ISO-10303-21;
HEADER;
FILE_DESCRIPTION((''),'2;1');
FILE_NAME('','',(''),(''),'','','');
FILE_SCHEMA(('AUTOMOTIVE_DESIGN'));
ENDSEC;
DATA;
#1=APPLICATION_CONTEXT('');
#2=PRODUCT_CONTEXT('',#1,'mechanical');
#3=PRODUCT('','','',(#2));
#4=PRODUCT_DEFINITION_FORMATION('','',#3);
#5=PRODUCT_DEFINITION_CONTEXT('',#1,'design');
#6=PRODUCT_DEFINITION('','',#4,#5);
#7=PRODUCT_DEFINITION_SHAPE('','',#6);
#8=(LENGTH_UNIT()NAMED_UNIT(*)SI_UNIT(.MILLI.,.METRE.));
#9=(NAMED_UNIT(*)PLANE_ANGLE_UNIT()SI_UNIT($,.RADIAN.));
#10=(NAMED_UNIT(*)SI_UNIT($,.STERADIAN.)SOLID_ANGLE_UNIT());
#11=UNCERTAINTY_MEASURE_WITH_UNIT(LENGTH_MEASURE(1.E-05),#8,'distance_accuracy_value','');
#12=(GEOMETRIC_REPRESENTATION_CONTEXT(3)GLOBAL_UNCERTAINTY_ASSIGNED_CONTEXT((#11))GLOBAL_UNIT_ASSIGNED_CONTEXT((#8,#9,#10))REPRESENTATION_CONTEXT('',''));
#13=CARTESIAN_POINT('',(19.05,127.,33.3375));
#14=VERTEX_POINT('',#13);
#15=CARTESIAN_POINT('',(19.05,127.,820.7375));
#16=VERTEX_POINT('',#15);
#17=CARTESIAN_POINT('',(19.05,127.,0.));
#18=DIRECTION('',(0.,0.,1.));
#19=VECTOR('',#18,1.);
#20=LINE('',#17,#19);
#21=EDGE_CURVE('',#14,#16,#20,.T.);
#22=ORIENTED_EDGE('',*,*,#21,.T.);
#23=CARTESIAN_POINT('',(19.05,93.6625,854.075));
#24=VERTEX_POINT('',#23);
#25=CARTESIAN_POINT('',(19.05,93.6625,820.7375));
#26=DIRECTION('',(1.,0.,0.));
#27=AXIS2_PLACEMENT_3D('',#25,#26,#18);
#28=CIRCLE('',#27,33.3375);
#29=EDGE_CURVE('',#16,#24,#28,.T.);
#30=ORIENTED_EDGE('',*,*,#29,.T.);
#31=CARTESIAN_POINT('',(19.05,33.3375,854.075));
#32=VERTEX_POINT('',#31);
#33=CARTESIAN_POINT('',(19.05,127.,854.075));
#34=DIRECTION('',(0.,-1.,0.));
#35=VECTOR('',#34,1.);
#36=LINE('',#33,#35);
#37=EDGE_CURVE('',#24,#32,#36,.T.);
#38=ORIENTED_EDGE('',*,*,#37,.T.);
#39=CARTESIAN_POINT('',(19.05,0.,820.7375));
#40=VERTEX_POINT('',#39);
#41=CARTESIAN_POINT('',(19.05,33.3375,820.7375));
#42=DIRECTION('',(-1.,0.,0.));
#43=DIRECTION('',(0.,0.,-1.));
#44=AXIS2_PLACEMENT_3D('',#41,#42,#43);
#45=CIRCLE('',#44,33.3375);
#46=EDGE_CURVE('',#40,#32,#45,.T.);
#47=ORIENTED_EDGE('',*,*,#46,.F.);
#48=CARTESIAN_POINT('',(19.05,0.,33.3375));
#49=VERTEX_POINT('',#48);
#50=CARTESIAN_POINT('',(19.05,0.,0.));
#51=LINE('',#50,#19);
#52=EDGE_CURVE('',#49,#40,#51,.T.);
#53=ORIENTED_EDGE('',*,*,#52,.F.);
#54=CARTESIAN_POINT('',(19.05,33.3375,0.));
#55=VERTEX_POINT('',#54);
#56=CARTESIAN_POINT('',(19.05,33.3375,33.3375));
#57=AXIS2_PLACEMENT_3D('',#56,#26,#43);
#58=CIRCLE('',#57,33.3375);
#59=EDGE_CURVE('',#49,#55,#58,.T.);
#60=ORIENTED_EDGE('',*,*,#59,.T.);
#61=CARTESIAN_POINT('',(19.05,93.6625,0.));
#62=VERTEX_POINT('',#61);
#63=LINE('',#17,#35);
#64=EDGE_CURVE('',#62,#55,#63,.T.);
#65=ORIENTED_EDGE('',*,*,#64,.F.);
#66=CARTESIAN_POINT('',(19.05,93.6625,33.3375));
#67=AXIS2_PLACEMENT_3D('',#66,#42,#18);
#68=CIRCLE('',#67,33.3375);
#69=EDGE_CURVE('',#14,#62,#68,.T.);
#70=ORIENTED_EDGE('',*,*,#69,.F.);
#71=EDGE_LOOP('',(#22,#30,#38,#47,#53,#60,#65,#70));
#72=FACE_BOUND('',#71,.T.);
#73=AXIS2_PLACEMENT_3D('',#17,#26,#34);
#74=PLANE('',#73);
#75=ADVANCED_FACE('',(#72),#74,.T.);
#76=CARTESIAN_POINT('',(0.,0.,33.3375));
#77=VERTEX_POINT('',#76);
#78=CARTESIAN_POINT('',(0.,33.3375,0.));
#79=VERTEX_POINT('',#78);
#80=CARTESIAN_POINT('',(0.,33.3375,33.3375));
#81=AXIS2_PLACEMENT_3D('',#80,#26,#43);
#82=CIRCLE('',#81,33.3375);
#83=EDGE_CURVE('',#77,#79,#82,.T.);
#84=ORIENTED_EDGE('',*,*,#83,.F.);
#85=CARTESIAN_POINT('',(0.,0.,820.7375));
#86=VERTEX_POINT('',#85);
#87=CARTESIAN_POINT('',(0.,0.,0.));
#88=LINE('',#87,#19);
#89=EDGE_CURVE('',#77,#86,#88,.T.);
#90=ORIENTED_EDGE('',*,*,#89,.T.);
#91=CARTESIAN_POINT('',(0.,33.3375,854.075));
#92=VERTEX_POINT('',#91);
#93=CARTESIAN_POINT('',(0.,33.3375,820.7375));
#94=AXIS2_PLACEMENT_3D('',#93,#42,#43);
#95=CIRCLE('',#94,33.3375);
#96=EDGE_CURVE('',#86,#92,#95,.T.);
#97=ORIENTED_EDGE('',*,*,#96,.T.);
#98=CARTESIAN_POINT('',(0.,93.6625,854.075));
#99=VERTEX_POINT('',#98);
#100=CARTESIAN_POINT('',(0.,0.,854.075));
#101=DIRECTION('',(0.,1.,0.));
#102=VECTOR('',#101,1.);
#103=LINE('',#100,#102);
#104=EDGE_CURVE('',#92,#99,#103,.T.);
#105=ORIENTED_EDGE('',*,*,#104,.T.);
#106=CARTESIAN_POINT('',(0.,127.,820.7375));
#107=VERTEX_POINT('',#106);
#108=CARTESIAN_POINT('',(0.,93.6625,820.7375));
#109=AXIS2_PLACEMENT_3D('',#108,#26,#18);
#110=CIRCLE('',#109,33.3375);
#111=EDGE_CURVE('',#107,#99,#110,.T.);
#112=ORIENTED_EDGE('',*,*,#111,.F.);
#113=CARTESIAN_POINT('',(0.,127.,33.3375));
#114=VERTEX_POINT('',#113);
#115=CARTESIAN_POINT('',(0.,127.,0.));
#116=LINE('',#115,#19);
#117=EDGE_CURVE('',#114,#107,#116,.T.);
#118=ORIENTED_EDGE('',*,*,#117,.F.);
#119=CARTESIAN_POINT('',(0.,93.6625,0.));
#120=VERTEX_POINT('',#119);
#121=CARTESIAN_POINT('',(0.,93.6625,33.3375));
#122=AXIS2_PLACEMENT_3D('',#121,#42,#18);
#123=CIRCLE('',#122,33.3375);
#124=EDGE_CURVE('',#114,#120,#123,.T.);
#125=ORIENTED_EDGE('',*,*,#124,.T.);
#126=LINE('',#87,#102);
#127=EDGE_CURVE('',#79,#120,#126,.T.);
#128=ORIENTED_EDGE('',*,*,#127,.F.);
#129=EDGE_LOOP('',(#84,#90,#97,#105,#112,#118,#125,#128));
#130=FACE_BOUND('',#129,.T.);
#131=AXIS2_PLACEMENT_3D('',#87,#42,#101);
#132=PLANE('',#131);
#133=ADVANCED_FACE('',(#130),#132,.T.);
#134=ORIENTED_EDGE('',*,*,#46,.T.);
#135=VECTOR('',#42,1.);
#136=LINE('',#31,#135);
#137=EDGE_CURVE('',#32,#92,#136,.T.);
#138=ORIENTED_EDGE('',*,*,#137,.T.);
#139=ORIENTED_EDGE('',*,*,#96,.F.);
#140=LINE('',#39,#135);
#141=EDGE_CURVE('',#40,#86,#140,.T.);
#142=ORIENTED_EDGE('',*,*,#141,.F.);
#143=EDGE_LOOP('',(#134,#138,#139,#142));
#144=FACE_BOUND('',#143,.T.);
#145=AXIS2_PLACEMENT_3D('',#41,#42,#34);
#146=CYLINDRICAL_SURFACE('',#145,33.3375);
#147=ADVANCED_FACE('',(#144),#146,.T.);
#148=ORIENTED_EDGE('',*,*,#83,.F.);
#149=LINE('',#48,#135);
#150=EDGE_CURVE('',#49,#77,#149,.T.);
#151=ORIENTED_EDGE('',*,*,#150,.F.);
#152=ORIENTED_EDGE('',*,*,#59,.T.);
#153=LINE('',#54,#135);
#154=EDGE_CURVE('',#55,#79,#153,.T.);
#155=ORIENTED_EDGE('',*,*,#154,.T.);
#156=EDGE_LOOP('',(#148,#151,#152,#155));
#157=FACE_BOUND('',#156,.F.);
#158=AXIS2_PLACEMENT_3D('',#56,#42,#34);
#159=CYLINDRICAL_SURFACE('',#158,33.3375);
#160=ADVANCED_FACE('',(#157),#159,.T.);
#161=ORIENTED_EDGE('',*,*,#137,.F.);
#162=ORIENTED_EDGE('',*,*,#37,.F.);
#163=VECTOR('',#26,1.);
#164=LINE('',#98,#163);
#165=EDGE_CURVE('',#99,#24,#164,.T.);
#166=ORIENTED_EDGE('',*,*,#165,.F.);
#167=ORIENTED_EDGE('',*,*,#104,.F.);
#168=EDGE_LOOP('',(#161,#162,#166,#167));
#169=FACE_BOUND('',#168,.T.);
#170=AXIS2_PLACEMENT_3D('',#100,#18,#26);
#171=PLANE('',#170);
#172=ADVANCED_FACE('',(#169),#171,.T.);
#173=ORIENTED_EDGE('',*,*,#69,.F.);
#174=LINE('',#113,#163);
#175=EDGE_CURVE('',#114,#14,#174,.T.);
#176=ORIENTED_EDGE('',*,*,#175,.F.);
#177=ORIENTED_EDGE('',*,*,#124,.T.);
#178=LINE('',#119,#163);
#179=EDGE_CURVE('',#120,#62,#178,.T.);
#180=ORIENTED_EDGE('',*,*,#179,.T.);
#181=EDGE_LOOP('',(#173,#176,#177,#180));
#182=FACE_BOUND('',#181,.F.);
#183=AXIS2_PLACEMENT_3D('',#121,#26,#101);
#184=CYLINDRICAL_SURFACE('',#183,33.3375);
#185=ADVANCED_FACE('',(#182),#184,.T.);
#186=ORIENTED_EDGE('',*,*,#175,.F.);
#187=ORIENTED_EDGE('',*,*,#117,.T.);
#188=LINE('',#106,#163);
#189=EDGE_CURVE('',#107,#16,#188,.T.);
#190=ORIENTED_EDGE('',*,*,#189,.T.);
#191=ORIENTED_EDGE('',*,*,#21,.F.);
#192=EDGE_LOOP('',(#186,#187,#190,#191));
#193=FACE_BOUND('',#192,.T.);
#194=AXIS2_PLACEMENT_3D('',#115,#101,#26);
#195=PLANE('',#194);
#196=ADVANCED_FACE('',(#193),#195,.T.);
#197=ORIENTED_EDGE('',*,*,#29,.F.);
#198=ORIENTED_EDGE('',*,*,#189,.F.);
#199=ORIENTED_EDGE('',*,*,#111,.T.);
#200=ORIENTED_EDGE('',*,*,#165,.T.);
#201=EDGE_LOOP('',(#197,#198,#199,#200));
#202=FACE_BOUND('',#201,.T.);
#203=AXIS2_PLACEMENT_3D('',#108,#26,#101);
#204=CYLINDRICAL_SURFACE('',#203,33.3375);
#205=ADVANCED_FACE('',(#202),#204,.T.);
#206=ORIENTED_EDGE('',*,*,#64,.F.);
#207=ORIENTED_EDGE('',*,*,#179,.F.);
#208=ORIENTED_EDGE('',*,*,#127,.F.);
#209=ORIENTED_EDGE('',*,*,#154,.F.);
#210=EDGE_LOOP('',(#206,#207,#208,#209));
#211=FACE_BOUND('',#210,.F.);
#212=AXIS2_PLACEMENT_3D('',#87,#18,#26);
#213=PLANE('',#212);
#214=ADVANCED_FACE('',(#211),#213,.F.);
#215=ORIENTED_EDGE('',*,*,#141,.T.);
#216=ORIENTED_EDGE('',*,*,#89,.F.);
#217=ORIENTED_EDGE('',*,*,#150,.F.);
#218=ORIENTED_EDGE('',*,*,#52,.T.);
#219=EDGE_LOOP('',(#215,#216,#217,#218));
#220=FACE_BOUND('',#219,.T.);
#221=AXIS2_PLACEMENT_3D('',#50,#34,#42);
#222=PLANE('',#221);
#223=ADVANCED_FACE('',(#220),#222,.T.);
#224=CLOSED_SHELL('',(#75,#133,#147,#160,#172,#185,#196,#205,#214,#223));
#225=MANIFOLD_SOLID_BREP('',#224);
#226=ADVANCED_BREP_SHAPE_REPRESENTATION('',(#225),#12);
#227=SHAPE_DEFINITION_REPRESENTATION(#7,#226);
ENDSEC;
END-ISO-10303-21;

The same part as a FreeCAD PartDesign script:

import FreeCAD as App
import Part
import Sketcher
Q = App.Units.Quantity


def edges_at(feature, points):
    """Names of the edges that pass closest to the given points."""
    edges = feature.Shape.Edges
    near = lambda p: min(range(len(edges)), key=lambda i: edges[i].distToShape(Part.Vertex(*p))[0])
    return sorted({f"Edge{near(p) + 1}" for p in points})

doc = App.newDocument("Part")
params = doc.addObject("Spreadsheet::Sheet", "Params")
for row, (alias, value) in enumerate([
    ("sketch1_height", "5 in"),
    ("sketch1_width", "0.75 in"),
    ("pad1_length", "33.625 in"),
    ("fillet_radius", "1.3125 in"),
], start=1):
    params.set(f"A{row}", alias)
    params.set(f"B{row}", "=" + value)
    params.setAlias(f"B{row}", alias)

body = doc.addObject("PartDesign::Body", "Body")

sketch1 = doc.addObject("Sketcher::SketchObject", "Sketch")
body.addObject(sketch1)
sketch1.AttachmentSupport = (doc.XY_Plane, [""])
sketch1.MapMode = "FlatFace"
sketch1.addGeometry([
    Part.LineSegment(App.Vector(0, 127, 0), App.Vector(0, 0, 0)),
    Part.LineSegment(App.Vector(0, 0, 0), App.Vector(19, 0, 0)),
    Part.LineSegment(App.Vector(19, 0, 0), App.Vector(19, 127, 0)),
    Part.LineSegment(App.Vector(19, 127, 0), App.Vector(0, 127, 0)),
], False)
sketch1.addConstraint([
    Sketcher.Constraint("Coincident", 0, 2, 1, 1),
    Sketcher.Constraint("Coincident", 1, 2, 2, 1),
    Sketcher.Constraint("Coincident", 2, 2, 3, 1),
    Sketcher.Constraint("Coincident", 3, 2, 0, 1),
    Sketcher.Constraint("Vertical", 0),
    Sketcher.Constraint("Horizontal", 1),
    Sketcher.Constraint("Vertical", 2),
    Sketcher.Constraint("Horizontal", 3),
    Sketcher.Constraint("Coincident", 0, 2, -1, 1),
    Sketcher.Constraint("DistanceY", 0, 2, 0, 1, Q("5 in")),
    Sketcher.Constraint("DistanceX", 1, 1, 1, 2, Q("0.75 in")),
])
sketch1.setExpression("Constraints[9]", "Params.sketch1_height")
sketch1.setExpression("Constraints[10]", "Params.sketch1_width")
pad1 = doc.addObject("PartDesign::Pad", "Pad")
body.addObject(pad1)
pad1.Profile = sketch1
pad1.setExpression("Length", "Params.pad1_length")
doc.recompute()

fillet = doc.addObject("PartDesign::Fillet", "Fillet")
body.addObject(fillet)
fillet.Base = (pad1, edges_at(pad1, [
    (9.525, 127, 854.075),
    (9.525, 0, 854.075),
    (9.525, 127, 0),
    (9.525, 0, 0),
]))
fillet.setExpression("Radius", "Params.fillet_radius")

doc.recompute()
